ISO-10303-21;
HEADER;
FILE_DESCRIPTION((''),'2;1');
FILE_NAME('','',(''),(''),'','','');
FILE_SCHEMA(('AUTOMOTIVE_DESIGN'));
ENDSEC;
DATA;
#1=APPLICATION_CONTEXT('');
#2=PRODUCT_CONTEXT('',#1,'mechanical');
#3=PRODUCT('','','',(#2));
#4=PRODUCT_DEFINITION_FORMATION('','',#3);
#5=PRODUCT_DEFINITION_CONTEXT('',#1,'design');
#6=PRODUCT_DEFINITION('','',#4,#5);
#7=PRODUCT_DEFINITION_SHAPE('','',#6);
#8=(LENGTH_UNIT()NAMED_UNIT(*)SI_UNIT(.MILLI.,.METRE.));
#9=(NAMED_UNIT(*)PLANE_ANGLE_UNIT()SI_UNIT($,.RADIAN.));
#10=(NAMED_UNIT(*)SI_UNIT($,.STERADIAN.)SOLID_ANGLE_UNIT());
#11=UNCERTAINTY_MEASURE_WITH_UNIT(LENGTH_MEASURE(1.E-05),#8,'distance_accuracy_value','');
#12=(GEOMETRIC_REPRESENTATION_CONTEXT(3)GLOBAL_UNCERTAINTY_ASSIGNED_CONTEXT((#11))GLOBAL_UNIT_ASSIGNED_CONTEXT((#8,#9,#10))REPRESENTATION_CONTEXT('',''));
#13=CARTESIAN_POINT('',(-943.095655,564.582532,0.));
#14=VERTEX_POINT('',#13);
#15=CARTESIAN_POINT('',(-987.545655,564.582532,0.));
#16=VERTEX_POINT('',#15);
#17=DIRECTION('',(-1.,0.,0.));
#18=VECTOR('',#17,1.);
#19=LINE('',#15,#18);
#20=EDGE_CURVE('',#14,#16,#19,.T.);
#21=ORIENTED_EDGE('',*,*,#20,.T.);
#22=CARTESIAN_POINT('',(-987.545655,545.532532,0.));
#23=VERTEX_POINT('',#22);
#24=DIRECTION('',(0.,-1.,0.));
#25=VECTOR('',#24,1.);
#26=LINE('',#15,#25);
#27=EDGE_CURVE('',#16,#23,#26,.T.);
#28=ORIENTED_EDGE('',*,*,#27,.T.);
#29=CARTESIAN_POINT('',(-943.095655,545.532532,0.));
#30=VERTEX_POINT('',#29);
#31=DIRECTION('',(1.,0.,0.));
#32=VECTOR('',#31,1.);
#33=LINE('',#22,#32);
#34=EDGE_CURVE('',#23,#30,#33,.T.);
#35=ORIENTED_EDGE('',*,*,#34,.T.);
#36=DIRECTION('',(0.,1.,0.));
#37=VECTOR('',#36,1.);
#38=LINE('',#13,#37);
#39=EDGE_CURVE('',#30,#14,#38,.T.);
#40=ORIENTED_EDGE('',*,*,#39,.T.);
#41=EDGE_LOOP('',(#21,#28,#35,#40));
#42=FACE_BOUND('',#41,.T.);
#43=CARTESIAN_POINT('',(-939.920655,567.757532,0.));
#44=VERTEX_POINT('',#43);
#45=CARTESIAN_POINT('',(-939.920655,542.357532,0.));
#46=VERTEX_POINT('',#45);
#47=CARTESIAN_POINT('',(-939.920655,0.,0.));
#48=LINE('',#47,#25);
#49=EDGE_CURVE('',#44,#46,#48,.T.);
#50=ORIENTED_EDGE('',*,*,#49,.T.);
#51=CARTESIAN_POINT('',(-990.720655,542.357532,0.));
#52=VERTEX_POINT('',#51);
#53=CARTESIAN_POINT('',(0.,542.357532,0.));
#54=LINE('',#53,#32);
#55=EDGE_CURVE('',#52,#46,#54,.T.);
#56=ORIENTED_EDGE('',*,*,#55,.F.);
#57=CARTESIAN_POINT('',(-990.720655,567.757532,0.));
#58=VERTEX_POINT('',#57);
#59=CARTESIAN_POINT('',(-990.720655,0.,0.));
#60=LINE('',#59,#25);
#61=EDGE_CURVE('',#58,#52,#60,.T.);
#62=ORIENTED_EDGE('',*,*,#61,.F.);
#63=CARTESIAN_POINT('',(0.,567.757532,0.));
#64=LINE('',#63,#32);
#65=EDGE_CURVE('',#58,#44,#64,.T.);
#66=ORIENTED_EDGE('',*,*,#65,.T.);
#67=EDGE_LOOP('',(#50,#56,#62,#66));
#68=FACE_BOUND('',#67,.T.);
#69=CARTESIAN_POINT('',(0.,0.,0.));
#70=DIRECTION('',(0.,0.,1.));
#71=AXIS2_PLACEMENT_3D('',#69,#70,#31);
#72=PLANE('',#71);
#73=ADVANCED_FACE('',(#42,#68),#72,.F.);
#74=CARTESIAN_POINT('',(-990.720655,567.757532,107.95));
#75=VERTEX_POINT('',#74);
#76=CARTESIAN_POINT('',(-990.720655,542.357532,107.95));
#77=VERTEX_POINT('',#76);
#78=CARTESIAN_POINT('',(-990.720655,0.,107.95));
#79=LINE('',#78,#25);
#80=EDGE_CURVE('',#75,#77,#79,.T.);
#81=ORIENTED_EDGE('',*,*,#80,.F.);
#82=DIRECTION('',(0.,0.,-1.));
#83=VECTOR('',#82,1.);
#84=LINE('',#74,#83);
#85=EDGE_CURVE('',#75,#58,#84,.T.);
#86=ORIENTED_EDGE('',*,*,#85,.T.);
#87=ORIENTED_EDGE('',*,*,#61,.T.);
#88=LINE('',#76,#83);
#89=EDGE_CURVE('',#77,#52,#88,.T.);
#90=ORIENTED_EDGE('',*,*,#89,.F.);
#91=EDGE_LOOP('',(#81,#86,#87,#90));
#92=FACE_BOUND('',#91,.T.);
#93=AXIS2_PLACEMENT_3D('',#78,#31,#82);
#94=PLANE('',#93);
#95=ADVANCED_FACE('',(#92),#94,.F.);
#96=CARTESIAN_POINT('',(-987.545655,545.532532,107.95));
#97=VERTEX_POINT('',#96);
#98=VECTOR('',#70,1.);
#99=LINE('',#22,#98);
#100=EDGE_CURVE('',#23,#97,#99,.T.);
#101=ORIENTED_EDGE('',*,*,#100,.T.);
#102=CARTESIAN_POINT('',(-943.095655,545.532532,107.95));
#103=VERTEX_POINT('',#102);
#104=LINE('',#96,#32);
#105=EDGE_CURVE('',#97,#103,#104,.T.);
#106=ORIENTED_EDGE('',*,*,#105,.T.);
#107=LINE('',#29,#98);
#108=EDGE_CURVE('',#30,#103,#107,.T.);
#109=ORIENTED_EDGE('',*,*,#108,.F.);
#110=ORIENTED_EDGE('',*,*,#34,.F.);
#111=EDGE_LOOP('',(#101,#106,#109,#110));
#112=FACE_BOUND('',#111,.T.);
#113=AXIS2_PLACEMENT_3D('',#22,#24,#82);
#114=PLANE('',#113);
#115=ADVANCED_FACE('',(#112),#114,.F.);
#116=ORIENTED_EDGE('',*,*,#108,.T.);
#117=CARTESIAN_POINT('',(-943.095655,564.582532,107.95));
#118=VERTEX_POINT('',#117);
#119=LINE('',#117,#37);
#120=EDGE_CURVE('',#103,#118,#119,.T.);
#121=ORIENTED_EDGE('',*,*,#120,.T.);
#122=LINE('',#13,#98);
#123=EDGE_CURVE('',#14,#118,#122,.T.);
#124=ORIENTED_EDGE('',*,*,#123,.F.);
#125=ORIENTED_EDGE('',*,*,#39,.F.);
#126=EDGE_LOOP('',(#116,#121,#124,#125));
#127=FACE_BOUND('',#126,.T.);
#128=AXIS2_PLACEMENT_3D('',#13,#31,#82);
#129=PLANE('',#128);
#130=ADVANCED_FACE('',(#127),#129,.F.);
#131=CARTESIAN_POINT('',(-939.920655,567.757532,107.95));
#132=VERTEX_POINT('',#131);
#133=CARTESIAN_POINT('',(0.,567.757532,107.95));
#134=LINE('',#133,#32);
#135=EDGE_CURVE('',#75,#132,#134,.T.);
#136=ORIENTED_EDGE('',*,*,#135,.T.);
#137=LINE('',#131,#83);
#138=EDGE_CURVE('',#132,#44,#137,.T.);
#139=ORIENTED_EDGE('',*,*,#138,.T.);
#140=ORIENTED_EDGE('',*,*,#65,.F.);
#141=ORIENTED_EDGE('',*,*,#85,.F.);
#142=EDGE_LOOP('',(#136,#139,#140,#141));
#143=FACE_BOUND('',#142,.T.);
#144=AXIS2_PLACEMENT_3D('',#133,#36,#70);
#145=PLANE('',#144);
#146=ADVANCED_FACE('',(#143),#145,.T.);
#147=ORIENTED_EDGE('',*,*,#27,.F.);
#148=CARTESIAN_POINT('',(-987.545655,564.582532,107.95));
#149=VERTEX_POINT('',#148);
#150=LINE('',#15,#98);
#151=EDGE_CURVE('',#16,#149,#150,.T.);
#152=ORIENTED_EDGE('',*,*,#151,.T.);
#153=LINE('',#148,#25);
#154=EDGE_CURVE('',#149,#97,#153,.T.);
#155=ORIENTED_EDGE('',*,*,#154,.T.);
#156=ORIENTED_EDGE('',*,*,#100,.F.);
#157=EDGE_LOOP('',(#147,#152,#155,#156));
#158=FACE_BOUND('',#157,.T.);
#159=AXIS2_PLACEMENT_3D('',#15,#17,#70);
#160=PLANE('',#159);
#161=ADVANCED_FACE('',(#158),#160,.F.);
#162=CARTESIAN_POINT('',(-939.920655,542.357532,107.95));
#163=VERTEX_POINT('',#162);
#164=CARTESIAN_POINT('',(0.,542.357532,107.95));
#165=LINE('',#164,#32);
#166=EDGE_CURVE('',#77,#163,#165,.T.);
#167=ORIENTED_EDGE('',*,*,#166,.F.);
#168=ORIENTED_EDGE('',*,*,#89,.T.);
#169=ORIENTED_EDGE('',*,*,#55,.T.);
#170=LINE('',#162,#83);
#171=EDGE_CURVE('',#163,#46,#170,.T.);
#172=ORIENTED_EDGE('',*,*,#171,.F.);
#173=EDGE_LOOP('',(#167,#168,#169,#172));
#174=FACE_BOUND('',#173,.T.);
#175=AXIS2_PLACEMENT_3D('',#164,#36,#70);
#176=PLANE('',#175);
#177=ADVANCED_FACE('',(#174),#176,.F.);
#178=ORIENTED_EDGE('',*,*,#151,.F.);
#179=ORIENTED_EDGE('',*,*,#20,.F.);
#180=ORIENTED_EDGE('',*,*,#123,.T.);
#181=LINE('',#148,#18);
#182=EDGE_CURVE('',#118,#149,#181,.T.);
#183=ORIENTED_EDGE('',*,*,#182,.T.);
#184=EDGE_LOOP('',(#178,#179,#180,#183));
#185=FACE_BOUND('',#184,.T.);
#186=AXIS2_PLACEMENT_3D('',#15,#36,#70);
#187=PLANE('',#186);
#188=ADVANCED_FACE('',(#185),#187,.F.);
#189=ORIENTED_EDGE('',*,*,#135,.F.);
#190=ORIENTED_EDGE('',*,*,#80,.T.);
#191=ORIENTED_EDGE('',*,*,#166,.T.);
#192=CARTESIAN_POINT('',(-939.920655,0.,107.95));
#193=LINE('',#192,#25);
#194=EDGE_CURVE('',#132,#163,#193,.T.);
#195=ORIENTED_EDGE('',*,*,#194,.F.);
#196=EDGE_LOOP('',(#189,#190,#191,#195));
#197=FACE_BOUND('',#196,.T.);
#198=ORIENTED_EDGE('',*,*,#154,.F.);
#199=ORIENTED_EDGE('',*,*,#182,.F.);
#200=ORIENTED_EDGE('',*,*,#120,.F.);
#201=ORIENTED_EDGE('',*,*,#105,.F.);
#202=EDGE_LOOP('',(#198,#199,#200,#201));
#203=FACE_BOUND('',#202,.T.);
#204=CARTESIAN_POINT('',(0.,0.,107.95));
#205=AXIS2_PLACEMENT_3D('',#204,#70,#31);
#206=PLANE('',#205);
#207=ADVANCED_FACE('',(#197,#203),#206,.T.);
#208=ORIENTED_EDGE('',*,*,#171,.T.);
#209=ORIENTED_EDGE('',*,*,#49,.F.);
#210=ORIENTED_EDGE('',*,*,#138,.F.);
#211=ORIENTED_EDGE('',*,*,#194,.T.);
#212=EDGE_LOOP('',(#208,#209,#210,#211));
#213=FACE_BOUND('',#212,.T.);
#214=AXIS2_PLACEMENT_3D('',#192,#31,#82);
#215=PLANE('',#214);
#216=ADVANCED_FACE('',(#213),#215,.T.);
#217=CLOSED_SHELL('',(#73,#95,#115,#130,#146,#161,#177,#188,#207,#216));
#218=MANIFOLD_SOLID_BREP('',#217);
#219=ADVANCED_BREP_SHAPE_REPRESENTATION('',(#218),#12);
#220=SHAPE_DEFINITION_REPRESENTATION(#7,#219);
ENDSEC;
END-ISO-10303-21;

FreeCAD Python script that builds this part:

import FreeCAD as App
import Part
import Sketcher

V = App.Vector
Q = App.Units.Quantity


def add_polygon(sketch, points):
    """Adds a closed chain of lines whose ends are joined by coincident constraints."""
    first, n = sketch.GeometryCount, len(points)
    for a, b in zip(points, points[1:] + points[:1]):
        sketch.addGeometry(Part.LineSegment(App.Vector(*a, 0), App.Vector(*b, 0)), False)
    for i in range(n):
        sketch.addConstraint(Sketcher.Constraint("Coincident", first + i, 2, first + (i + 1) % n, 1))

doc = App.newDocument("Part")
body = doc.addObject("PartDesign::Body", "Body")

# Sketch on XY plane
sketch1 = doc.addObject("Sketcher::SketchObject", "Sketch")
body.addObject(sketch1)
sketch1.AttachmentSupport = (doc.XY_Plane, [""])
sketch1.MapMode = "FlatFace"
add_polygon(sketch1, [(-990.720655, 567.757532), (-990.720655, 542.357532), (-939.920655, 542.357532), (-939.920655, 567.757532)])  # lines 0-3
sketch1.addConstraint([
    Sketcher.Constraint("Vertical", 0),
    Sketcher.Constraint("Horizontal", 1),
    Sketcher.Constraint("Vertical", 2),
    Sketcher.Constraint("Horizontal", 3),
    Sketcher.Constraint("DistanceX", 1, 1, 1, 2, Q("2 in")),
    Sketcher.Constraint("DistanceY", 0, 2, 0, 1, Q("1 in")),
    Sketcher.Constraint("DistanceX", 0, 2, -1, 1, Q("990.720655 mm")),
    Sketcher.Constraint("DistanceY", -1, 1, 0, 2, Q("542.357532 mm")),
])
pad1 = doc.addObject("PartDesign::Pad", "Pad")
body.addObject(pad1)
pad1.Profile = sketch1
pad1.Length = Q("4.25 in")

# Sketch on XY plane
sketch2 = doc.addObject("Sketcher::SketchObject", "Sketch001")
body.addObject(sketch2)
sketch2.AttachmentSupport = (doc.XY_Plane, [""])
sketch2.MapMode = "FlatFace"
sketch2.AttachmentOffset = App.Placement(V(0, 0, 4.25 * 25.4), App.Rotation())
add_polygon(sketch2, [(-987.545655, 564.582532), (-987.545655, 545.532532), (-943.095655, 545.532532), (-943.095655, 564.582532)])  # lines 0-3
sketch2.addConstraint([
    Sketcher.Constraint("Vertical", 0),
    Sketcher.Constraint("Horizontal", 1),
    Sketcher.Constraint("Vertical", 2),
    Sketcher.Constraint("Horizontal", 3),
    Sketcher.Constraint("DistanceX", 1, 1, 1, 2, Q("1.75 in")),
    Sketcher.Constraint("DistanceY", 0, 2, 0, 1, Q("0.75 in")),
    Sketcher.Constraint("DistanceX", 0, 2, -1, 1, Q("987.545655 mm")),
    Sketcher.Constraint("DistanceY", -1, 1, 0, 2, Q("545.532532 mm")),
])
pocket1 = doc.addObject("PartDesign::Pocket", "Pocket")
body.addObject(pocket1)
pocket1.Profile = sketch2
pocket1.Type = "ThroughAll"

doc.recompute()
